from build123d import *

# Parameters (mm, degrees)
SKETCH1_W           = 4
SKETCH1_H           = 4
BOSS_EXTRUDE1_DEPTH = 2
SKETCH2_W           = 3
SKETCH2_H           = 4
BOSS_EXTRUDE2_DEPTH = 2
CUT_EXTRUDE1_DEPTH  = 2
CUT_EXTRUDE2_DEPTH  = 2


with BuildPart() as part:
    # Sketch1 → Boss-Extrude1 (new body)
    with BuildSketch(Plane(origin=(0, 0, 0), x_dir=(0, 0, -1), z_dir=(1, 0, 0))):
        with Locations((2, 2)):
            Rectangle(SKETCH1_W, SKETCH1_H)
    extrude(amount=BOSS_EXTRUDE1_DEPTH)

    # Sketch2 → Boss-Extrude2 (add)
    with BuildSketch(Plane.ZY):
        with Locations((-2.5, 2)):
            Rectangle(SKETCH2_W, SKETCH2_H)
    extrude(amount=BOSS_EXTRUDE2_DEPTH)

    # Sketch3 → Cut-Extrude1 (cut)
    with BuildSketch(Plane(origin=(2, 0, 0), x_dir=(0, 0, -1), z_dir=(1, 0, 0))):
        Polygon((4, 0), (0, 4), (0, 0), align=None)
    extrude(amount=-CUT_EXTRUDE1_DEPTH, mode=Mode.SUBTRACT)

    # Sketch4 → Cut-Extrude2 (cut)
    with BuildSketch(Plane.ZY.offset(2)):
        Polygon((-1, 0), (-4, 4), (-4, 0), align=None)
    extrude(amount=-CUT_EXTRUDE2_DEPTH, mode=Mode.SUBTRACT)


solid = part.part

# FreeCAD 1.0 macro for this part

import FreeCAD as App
import Part
import Sketcher
Q = App.Units.Quantity

doc = App.newDocument("Part")
body = doc.addObject("PartDesign::Body", "Body")

sketch1 = doc.addObject("Sketcher::SketchObject", "Sketch")
body.addObject(sketch1)
sketch1.AttachmentSupport = (doc.YZ_Plane, [""])
sketch1.MapMode = "FlatFace"
sketch1.addGeometry([
    Part.LineSegment(App.Vector(4, 0, 0), App.Vector(0, 0, 0)),
    Part.LineSegment(App.Vector(0, 0, 0), App.Vector(0, -4, 0)),
    Part.LineSegment(App.Vector(0, -4, 0), App.Vector(4, -4, 0)),
    Part.LineSegment(App.Vector(4, -4, 0), App.Vector(4, 0, 0)),
], False)
sketch1.addConstraint([
    Sketcher.Constraint("Coincident", 0, 2, 1, 1),
    Sketcher.Constraint("Coincident", 1, 2, 2, 1),
    Sketcher.Constraint("Coincident", 2, 2, 3, 1),
    Sketcher.Constraint("Coincident", 3, 2, 0, 1),
    Sketcher.Constraint("Horizontal", 0),
    Sketcher.Constraint("Vertical", 1),
    Sketcher.Constraint("Horizontal", 2),
    Sketcher.Constraint("Vertical", 3),
    Sketcher.Constraint("Coincident", 0, 2, -1, 1),
    Sketcher.Constraint("Equal", 2, 1),
    Sketcher.Constraint("DistanceX", 0, 2, 0, 1, Q("4 mm")),
])
pad1 = doc.addObject("PartDesign::Pad", "Pad")
body.addObject(pad1)
pad1.Profile = sketch1
pad1.Length = 2

sketch2 = doc.addObject("Sketcher::SketchObject", "Sketch001")
body.addObject(sketch2)
sketch2.AttachmentSupport = (doc.YZ_Plane, [""])
sketch2.MapMode = "FlatFace"
sketch2.addGeometry([
    Part.LineSegment(App.Vector(4, -4, 0), App.Vector(0, -4, 0)),
    Part.LineSegment(App.Vector(0, -4, 0), App.Vector(0, -1, 0)),
    Part.LineSegment(App.Vector(0, -1, 0), App.Vector(4, -1, 0)),
    Part.LineSegment(App.Vector(4, -1, 0), App.Vector(4, -4, 0)),
], False)
sketch2.addConstraint([
    Sketcher.Constraint("Coincident", 0, 2, 1, 1),
    Sketcher.Constraint("Coincident", 1, 2, 2, 1),
    Sketcher.Constraint("Coincident", 2, 2, 3, 1),
    Sketcher.Constraint("Coincident", 3, 2, 0, 1),
    Sketcher.Constraint("Horizontal", 0),
    Sketcher.Constraint("Vertical", 1),
    Sketcher.Constraint("Horizontal", 2),
    Sketcher.Constraint("Vertical", 3),
    Sketcher.Constraint("PointOnObject", 0, 2, -2),
    Sketcher.Constraint("DistanceX", 0, 2, 0, 1, Q("4 mm")),
    Sketcher.Constraint("DistanceY", 1, 1, 1, 2, Q("3 mm")),
    Sketcher.Constraint("DistanceY", 0, 2, -1, 1, Q("4 mm")),
])
pad2 = doc.addObject("PartDesign::Pad", "Pad001")
body.addObject(pad2)
pad2.Profile = sketch2
pad2.Length = 2
pad2.Reversed = True

sketch3 = doc.addObject("Sketcher::SketchObject", "Sketch002")
body.addObject(sketch3)
sketch3.AttachmentSupport = (doc.YZ_Plane, [""])
sketch3.MapMode = "FlatFace"
sketch3.AttachmentOffset = App.Placement(App.Vector(0, 0, 2), App.Rotation())
sketch3.addGeometry([
    Part.LineSegment(App.Vector(0, -4, 0), App.Vector(4, 0, 0)),
    Part.LineSegment(App.Vector(4, 0, 0), App.Vector(0, 0, 0)),
    Part.LineSegment(App.Vector(0, 0, 0), App.Vector(0, -4, 0)),
], False)
sketch3.addConstraint([
    Sketcher.Constraint("Coincident", 0, 2, 1, 1),
    Sketcher.Constraint("Coincident", 1, 2, 2, 1),
    Sketcher.Constraint("Coincident", 2, 2, 0, 1),
    Sketcher.Constraint("Horizontal", 1),
    Sketcher.Constraint("Vertical", 2),
    Sketcher.Constraint("Coincident", 1, 2, -1, 1),
    Sketcher.Constraint("Equal", 1, 2),
    Sketcher.Constraint("DistanceX", 1, 2, 1, 1, Q("4 mm")),
])
pocket1 = doc.addObject("PartDesign::Pocket", "Pocket")
body.addObject(pocket1)
pocket1.Profile = sketch3
pocket1.Length = 2

sketch4 = doc.addObject("Sketcher::SketchObject", "Sketch003")
body.addObject(sketch4)
sketch4.AttachmentSupport = (doc.YZ_Plane, [""])
sketch4.MapMode = "FlatFace"
sketch4.AttachmentOffset = App.Placement(App.Vector(0, 0, -2), App.Rotation())
sketch4.addGeometry([
    Part.LineSegment(App.Vector(0, -1, 0), App.Vector(4, -4, 0)),
    Part.LineSegment(App.Vector(4, -4, 0), App.Vector(0, -4, 0)),
    Part.LineSegment(App.Vector(0, -4, 0), App.Vector(0, -1, 0)),
], False)
sketch4.addConstraint([
    Sketcher.Constraint("Coincident", 0, 2, 1, 1),
    Sketcher.Constraint("Coincident", 1, 2, 2, 1),
    Sketcher.Constraint("Coincident", 2, 2, 0, 1),
    Sketcher.Constraint("Horizontal", 1),
    Sketcher.Constraint("Vertical", 2),
    Sketcher.Constraint("PointOnObject", 1, 2, -2),
    Sketcher.Constraint("DistanceX", 1, 2, 1, 1, Q("4 mm")),
    Sketcher.Constraint("DistanceY", 2, 1, 2, 2, Q("3 mm")),
    Sketcher.Constraint("DistanceY", 0, 2, -1, 1, Q("4 mm")),
])
pocket2 = doc.addObject("PartDesign::Pocket", "Pocket001")
body.addObject(pocket2)
pocket2.Profile = sketch4
pocket2.Length = 2
pocket2.Reversed = True

doc.recompute()
